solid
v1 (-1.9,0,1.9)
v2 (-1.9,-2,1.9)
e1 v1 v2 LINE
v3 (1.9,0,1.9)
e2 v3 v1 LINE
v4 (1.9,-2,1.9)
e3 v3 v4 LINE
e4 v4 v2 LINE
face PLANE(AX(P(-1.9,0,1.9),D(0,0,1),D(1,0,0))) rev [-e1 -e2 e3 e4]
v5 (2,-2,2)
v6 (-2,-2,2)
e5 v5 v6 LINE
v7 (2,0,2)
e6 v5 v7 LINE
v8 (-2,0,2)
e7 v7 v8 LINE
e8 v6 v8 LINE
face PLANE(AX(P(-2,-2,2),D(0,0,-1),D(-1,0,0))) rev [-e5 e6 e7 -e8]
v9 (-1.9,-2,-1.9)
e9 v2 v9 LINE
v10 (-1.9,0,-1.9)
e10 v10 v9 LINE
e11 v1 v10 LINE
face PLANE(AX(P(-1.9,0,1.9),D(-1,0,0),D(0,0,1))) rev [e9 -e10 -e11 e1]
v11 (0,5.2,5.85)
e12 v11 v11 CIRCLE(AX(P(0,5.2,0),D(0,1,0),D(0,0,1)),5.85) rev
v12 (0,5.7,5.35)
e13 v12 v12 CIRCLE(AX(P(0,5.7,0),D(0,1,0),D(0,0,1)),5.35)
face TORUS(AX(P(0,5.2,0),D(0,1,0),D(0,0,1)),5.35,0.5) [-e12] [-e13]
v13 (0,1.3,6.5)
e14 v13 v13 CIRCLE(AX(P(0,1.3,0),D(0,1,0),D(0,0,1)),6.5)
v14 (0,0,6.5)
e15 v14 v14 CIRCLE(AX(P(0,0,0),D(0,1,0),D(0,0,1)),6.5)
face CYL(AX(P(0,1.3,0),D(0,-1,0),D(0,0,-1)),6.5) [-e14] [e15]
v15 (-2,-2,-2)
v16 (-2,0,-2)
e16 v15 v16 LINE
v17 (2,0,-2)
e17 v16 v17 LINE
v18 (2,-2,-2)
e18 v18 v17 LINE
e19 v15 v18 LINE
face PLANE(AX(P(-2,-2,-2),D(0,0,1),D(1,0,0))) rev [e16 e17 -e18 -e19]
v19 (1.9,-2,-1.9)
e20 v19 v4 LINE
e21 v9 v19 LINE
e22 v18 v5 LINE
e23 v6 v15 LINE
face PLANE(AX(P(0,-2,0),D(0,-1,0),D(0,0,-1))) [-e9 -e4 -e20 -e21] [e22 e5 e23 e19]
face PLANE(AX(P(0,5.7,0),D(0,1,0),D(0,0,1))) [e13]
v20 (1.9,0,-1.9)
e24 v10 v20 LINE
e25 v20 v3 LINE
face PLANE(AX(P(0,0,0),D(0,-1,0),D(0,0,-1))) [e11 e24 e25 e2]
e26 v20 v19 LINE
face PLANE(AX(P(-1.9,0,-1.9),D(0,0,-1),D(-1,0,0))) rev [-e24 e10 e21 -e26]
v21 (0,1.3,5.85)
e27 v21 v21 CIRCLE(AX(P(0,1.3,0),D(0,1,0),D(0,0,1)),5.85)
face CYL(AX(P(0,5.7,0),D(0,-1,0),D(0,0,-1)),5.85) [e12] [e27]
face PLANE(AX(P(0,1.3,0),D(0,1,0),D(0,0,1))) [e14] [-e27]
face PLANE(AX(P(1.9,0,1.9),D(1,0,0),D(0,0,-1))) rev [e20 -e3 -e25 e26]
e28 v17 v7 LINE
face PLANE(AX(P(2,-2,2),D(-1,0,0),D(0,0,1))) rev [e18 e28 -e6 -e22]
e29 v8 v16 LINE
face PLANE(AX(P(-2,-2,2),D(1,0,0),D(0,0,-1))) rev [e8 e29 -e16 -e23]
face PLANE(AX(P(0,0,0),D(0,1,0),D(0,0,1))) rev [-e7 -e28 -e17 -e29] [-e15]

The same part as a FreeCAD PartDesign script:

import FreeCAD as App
import Part
import Sketcher

V = App.Vector
Q = App.Units.Quantity


def edges_at(feature, points):
    """Names of the edges that pass closest to the given points."""
    edges = feature.Shape.Edges
    near = lambda p: min(range(len(edges)), key=lambda i: edges[i].distToShape(Part.Vertex(*p))[0])
    return sorted({f"Edge{near(p) + 1}" for p in points})

doc = App.newDocument("Part")
body = doc.addObject("PartDesign::Body", "Body")

# Sketch on XZ plane
sketch1 = doc.addObject("Sketcher::SketchObject", "Sketch")
body.addObject(sketch1)
sketch1.AttachmentSupport = (doc.XZ_Plane, [""])
sketch1.MapMode = "FlatFace"
sketch1.addGeometry(Part.Circle(V(0, 0, 0), V(0, 0, 1), 6), False)
sketch1.addConstraint([
    Sketcher.Constraint("Coincident", 0, 3, -1, 1),
    Sketcher.Constraint("Diameter", 0, Q("13 mm")),
])
pad1 = doc.addObject("PartDesign::Pad", "Pad")
body.addObject(pad1)
pad1.Profile = sketch1
pad1.Length = 1.3
pad1.Reversed = True

# Sketch on XZ plane
sketch2 = doc.addObject("Sketcher::SketchObject", "Sketch001")
body.addObject(sketch2)
sketch2.AttachmentSupport = (doc.XZ_Plane, [""])
sketch2.MapMode = "FlatFace"
sketch2.AttachmentOffset = App.Placement(V(0, 0, -1.3), App.Rotation())
sketch2.addGeometry(Part.Circle(V(0, 0, 0), V(0, 0, 1), 6), False)
sketch2.addConstraint([
    Sketcher.Constraint("Coincident", 0, 3, -1, 1),
    Sketcher.Constraint("Diameter", 0, Q("11.7 mm")),
])
pad2 = doc.addObject("PartDesign::Pad", "Pad001")
body.addObject(pad2)
pad2.Profile = sketch2
pad2.Length = 4.4
pad2.Reversed = True
doc.recompute()

fillet = doc.addObject("PartDesign::Fillet", "Fillet")
body.addObject(fillet)
fillet.Base = (pad2, edges_at(pad2, [(-5.85, 5.7, 0)]))
fillet.Radius = 0.5

# Sketch on XZ plane
sketch3 = doc.addObject("Sketcher::SketchObject", "Sketch002")
body.addObject(sketch3)
sketch3.AttachmentSupport = (doc.XZ_Plane, [""])
sketch3.MapMode = "FlatFace"
sketch3.addGeometry([
    Part.LineSegment(V(-2, 2, 0), V(-2, -2, 0)),
    Part.LineSegment(V(-2, -2, 0), V(2, -2, 0)),
    Part.LineSegment(V(2, -2, 0), V(2, 2, 0)),
    Part.LineSegment(V(2, 2, 0), V(-2, 2, 0)),
], False)
sketch3.addConstraint([
    Sketcher.Constraint("Coincident", 0, 2, 1, 1),
    Sketcher.Constraint("Coincident", 1, 2, 2, 1),
    Sketcher.Constraint("Coincident", 2, 2, 3, 1),
    Sketcher.Constraint("Coincident", 3, 2, 0, 1),
    Sketcher.Constraint("Vertical", 0),
    Sketcher.Constraint("Horizontal", 1),
    Sketcher.Constraint("Vertical", 2),
    Sketcher.Constraint("Horizontal", 3),
    Sketcher.Constraint("Symmetric", 0, 2, 2, 2, -1, 1),
    Sketcher.Constraint("Equal", 3, 0),
    Sketcher.Constraint("DistanceX", 1, 1, 1, 2, Q("4 mm")),
])
pad3 = doc.addObject("PartDesign::Pad", "Pad002")
body.addObject(pad3)
pad3.Profile = sketch3
pad3.Length = 2

# Sketch on XZ plane
sketch4 = doc.addObject("Sketcher::SketchObject", "Sketch003")
body.addObject(sketch4)
sketch4.AttachmentSupport = (doc.XZ_Plane, [""])
sketch4.MapMode = "FlatFace"
sketch4.AttachmentOffset = App.Placement(V(0, 0, 2), App.Rotation())
sketch4.addGeometry([
    Part.LineSegment(V(-1.9, 1.9, 0), V(-1.9, -1.9, 0)),
    Part.LineSegment(V(-1.9, -1.9, 0), V(1.9, -1.9, 0)),
    Part.LineSegment(V(1.9, -1.9, 0), V(1.9, 1.9, 0)),
    Part.LineSegment(V(1.9, 1.9, 0), V(-1.9, 1.9, 0)),
], False)
sketch4.addConstraint([
    Sketcher.Constraint("Coincident", 0, 2, 1, 1),
    Sketcher.Constraint("Coincident", 1, 2, 2, 1),
    Sketcher.Constraint("Coincident", 2, 2, 3, 1),
    Sketcher.Constraint("Coincident", 3, 2, 0, 1),
    Sketcher.Constraint("Vertical", 0),
    Sketcher.Constraint("Horizontal", 1),
    Sketcher.Constraint("Vertical", 2),
    Sketcher.Constraint("Horizontal", 3),
    Sketcher.Constraint("Symmetric", 0, 2, 2, 2, -1, 1),
    Sketcher.Constraint("Equal", 3, 0),
    Sketcher.Constraint("DistanceX", 1, 1, 1, 2, Q("3.8 mm")),
])
pocket1 = doc.addObject("PartDesign::Pocket", "Pocket")
body.addObject(pocket1)
pocket1.Profile = sketch4
pocket1.Length = 2

doc.recompute()
